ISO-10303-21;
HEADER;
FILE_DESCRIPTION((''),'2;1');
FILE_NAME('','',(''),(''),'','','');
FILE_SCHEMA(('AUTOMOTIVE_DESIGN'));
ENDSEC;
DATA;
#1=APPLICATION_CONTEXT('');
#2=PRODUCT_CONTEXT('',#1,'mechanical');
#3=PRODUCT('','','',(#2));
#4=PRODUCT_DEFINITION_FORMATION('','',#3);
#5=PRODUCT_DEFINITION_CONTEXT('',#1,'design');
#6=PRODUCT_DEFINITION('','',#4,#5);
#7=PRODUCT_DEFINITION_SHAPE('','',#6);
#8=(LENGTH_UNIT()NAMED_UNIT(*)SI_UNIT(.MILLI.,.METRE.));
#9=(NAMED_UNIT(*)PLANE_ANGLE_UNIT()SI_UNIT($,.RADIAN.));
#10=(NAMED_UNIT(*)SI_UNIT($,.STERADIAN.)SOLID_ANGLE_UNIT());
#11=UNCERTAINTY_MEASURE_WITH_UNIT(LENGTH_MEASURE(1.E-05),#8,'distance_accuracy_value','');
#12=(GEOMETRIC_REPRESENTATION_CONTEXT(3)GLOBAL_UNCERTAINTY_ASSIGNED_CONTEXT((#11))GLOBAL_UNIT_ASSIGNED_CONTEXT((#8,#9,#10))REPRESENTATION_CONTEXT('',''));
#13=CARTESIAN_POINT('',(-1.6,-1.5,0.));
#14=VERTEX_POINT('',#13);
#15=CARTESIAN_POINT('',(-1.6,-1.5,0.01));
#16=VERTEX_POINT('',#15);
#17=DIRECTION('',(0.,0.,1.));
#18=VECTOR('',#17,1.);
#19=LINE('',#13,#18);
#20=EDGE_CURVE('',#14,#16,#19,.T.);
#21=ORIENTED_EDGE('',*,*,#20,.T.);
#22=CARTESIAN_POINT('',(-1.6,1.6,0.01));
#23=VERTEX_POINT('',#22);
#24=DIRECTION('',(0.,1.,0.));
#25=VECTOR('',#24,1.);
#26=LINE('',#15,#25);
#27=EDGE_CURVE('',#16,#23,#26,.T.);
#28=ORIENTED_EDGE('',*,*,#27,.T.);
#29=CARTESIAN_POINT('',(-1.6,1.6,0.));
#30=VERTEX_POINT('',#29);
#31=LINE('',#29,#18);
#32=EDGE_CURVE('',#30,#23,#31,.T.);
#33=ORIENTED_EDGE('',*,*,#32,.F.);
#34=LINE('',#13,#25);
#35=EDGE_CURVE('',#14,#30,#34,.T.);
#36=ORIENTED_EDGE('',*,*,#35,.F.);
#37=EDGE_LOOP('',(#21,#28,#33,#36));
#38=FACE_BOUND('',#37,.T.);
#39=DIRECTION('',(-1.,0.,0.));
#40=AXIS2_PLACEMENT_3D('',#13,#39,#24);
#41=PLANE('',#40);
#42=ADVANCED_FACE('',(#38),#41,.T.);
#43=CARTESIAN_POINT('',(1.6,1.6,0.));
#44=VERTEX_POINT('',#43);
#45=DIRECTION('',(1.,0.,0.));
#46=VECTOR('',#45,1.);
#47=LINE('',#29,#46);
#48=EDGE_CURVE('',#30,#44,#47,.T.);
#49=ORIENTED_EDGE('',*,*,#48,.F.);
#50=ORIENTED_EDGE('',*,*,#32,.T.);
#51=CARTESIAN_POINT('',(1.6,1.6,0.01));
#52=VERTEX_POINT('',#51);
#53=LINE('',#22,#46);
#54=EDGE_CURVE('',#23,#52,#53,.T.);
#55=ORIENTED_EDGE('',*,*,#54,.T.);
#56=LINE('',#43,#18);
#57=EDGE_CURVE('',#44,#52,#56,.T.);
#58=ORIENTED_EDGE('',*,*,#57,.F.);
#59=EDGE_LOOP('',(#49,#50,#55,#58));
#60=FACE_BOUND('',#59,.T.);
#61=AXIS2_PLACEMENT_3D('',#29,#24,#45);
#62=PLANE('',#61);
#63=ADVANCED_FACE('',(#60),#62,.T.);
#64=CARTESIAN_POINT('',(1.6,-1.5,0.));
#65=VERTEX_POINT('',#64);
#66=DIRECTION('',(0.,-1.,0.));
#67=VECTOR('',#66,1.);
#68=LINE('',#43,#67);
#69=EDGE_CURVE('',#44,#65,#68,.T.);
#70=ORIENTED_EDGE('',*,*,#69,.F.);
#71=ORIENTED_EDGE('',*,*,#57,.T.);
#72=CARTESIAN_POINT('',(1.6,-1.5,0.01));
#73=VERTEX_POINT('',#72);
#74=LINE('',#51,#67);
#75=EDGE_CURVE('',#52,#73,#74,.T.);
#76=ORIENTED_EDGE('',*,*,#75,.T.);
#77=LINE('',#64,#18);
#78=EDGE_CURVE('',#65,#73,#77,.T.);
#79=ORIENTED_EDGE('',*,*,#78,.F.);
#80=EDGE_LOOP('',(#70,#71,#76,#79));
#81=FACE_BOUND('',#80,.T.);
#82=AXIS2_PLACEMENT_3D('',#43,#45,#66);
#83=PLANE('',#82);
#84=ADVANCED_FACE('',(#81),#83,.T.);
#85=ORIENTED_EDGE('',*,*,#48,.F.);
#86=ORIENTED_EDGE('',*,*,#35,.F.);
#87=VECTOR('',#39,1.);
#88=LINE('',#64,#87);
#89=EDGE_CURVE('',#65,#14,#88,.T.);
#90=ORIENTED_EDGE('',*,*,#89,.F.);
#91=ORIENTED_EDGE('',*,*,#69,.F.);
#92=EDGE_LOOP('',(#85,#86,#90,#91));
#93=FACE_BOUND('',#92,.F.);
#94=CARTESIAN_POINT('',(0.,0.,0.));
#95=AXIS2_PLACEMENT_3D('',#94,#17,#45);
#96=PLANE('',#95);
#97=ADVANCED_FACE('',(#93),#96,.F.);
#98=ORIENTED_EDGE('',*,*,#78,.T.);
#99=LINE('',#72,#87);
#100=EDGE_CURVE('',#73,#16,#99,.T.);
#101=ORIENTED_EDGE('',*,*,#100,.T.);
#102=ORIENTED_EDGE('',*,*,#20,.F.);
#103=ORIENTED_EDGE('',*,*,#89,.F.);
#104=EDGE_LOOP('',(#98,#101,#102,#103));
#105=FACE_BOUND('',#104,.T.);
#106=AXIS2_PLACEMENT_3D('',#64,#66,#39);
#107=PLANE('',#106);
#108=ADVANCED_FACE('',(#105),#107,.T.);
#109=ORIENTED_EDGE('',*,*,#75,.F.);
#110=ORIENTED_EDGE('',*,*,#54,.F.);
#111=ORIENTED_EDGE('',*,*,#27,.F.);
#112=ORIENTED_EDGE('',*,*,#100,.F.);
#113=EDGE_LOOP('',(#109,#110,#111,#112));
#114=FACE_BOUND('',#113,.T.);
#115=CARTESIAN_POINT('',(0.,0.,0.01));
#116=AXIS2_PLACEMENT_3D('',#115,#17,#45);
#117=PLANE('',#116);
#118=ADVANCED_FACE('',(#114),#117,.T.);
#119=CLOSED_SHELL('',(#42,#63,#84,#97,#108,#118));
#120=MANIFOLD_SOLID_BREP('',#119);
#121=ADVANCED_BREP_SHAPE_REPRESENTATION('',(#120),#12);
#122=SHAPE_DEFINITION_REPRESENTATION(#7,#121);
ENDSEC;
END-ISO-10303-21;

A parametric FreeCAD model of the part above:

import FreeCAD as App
import Part
import Sketcher

V = App.Vector

doc = App.newDocument("Part")
params = doc.addObject("Spreadsheet::Sheet", "Params")
for row, (alias, value) in enumerate([
    ("sketch1_width", "3.2 mm"),
    ("sketch1_height", "3.1 mm"),
    ("pad1_length", "0.01 mm"),
], start=1):
    params.set(f"A{row}", alias)
    params.set(f"B{row}", "=" + value)
    params.setAlias(f"B{row}", alias)

body = doc.addObject("PartDesign::Body", "Body")

sketch1 = body.newObject("Sketcher::SketchObject", "Sketch")
sketch1.AttachmentSupport = (doc.getObject("XY_Plane"), [""])
sketch1.MapMode = "FlatFace"
sketch1.addGeometry([
    Part.LineSegment(V(1.6, 1.6, 0), V(-1.6, 1.6, 0)),
    Part.LineSegment(V(-1.6, 1.6, 0), V(-1.6, -1.5, 0)),
    Part.LineSegment(V(-1.6, -1.5, 0), V(1.6, -1.5, 0)),
    Part.LineSegment(V(1.6, -1.5, 0), V(1.6, 1.6, 0)),
], False)
sketch1.addConstraint([
    Sketcher.Constraint("Coincident", 0, 2, 1, 1),
    Sketcher.Constraint("Coincident", 1, 2, 2, 1),
    Sketcher.Constraint("Coincident", 2, 2, 3, 1),
    Sketcher.Constraint("Coincident", 3, 2, 0, 1),
    Sketcher.Constraint("Horizontal", 0),
    Sketcher.Constraint("Vertical", 1),
    Sketcher.Constraint("Horizontal", 2),
    Sketcher.Constraint("Vertical", 3),
    Sketcher.Constraint("DistanceX", 0, 2, 0, 1, 3.2),
    Sketcher.Constraint("DistanceY", 1, 2, 1, 1, 3.1),
    Sketcher.Constraint("DistanceX", 0, 2, -1, 1, 1.6),
    Sketcher.Constraint("DistanceY", -1, 1, 0, 2, 1.6),
])
sketch1.setExpression("Constraints[8]", "Params.sketch1_width")
sketch1.setExpression("Constraints[9]", "Params.sketch1_height")
pad1 = body.newObject("PartDesign::Pad", "Pad")
pad1.Profile = sketch1
pad1.setExpression("Length", "Params.pad1_length")

doc.recompute()
